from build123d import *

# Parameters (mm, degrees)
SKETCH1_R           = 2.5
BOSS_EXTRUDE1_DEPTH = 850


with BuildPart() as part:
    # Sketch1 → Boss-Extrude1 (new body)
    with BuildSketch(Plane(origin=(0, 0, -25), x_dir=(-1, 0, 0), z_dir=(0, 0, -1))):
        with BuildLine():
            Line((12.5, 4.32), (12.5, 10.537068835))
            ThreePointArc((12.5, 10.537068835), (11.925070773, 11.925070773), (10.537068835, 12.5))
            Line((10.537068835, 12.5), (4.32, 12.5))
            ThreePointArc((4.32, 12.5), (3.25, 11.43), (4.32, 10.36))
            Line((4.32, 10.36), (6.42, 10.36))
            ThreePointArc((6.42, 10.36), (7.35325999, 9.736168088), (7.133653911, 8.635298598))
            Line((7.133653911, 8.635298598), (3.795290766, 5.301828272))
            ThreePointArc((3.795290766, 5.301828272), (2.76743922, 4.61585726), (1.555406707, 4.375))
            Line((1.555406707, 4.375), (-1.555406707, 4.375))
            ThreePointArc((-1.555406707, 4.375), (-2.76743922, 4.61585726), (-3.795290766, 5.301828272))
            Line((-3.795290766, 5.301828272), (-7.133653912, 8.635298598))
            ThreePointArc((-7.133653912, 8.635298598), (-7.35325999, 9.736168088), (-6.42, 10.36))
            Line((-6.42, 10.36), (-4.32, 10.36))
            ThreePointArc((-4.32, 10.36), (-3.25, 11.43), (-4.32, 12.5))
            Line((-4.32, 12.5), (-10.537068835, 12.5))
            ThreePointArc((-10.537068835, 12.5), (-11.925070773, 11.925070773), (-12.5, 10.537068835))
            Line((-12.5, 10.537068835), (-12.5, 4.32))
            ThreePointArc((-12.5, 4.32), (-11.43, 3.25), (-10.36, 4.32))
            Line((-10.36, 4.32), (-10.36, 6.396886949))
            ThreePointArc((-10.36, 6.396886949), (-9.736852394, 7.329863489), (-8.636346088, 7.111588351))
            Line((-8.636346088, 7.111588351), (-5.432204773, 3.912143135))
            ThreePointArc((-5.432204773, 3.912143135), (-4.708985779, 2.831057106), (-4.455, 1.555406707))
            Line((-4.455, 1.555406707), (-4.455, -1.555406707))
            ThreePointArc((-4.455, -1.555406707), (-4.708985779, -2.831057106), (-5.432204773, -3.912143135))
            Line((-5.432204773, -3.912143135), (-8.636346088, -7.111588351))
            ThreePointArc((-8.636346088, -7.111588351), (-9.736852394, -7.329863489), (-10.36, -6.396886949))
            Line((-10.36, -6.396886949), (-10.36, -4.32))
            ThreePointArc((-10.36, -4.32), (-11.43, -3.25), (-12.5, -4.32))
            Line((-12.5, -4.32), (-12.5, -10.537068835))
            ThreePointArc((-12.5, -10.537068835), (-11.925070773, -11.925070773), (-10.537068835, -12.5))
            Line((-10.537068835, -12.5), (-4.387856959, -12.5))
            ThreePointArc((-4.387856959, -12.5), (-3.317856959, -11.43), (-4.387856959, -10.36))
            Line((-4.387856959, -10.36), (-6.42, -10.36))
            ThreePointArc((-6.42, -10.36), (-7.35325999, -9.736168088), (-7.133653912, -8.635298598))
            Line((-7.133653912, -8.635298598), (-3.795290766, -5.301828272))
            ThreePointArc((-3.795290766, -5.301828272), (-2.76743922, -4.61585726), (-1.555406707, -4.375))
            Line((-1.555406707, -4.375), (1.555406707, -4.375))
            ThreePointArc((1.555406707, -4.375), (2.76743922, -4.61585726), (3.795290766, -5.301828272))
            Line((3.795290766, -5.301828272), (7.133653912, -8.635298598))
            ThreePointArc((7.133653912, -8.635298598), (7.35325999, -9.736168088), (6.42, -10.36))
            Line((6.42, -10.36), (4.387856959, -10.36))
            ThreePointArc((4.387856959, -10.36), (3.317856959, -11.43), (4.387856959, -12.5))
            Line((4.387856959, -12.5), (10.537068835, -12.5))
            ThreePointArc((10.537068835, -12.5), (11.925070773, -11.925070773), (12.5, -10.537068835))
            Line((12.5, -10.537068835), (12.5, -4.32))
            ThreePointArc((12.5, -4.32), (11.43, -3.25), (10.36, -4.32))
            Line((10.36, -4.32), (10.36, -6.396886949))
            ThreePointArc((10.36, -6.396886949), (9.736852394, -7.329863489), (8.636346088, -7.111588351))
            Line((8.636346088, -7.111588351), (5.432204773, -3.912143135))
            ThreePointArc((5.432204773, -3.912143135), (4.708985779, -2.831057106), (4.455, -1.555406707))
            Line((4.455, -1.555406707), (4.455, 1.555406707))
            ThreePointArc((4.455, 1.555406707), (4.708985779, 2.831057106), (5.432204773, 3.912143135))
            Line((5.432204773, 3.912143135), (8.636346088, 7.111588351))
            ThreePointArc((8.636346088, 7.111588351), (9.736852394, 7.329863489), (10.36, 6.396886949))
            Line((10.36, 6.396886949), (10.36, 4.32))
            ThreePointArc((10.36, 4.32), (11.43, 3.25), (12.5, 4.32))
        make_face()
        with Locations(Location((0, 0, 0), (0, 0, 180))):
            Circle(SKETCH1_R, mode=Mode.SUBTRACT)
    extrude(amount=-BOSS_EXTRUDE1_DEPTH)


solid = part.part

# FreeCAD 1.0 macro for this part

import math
import FreeCAD as App
import Part
import Sketcher

V = App.Vector

doc = App.newDocument("Part")
body = doc.addObject("PartDesign::Body", "Body")

# Sketch on XY plane
sketch1 = doc.addObject("Sketcher::SketchObject", "Sketch")
body.addObject(sketch1)
sketch1.AttachmentSupport = (doc.XY_Plane, [""])
sketch1.MapMode = "FlatFace"
sketch1.AttachmentOffset = App.Placement(V(0, 0, -25), App.Rotation())
sketch1.addGeometry([
    Part.LineSegment(V(-12.5, 4.3, 0), V(-12.5, 10.5, 0)),  # 0
    Part.ArcOfCircle(Part.Circle(V(-10.5, 10.5, 0), V(0, 0, 1), 2), math.radians(90), math.radians(180)),  # 1
    Part.LineSegment(V(-10.5, 12.5, 0), V(-4.3, 12.5, 0)),  # 2
    Part.ArcOfCircle(Part.Circle(V(-4.3, 11.4, 0), V(0, 0, 1), 1.1), math.radians(-90), math.radians(90)),  # 3
    Part.LineSegment(V(-4.3, 10.4, 0), V(-6.4, 10.4, 0)),  # 4
    Part.ArcOfCircle(Part.Circle(V(-6.4, 9.4, 0), V(0, 0, 1), 1), math.radians(90), math.radians(225)),  # 5
    Part.LineSegment(V(-7.1, 8.6, 0), V(-3.8, 5.3, 0)),  # 6
    Part.ArcOfCircle(Part.Circle(V(-1.6, 7.5, 0), V(0, 0, 1), 3.2), math.radians(-135), math.radians(-90)),  # 7
    Part.LineSegment(V(-1.6, 4.4, 0), V(1.6, 4.4, 0)),  # 8
    Part.ArcOfCircle(Part.Circle(V(1.6, 7.5, 0), V(0, 0, 1), 3.2), math.radians(-90), math.radians(-45)),  # 9
    Part.LineSegment(V(3.8, 5.3, 0), V(7.1, 8.6, 0)),  # 10
    Part.ArcOfCircle(Part.Circle(V(6.4, 9.3, 0), V(0, 0, 1), 1), math.radians(-45), math.radians(90)),  # 11
    Part.LineSegment(V(6.4, 10.4, 0), V(4.3, 10.4, 0)),  # 12
    Part.ArcOfCircle(Part.Circle(V(4.3, 11.4, 0), V(0, 0, 1), 1.1), math.radians(90), math.radians(270)),  # 13
    Part.LineSegment(V(4.3, 12.5, 0), V(10.5, 12.5, 0)),  # 14
    Part.ArcOfCircle(Part.Circle(V(10.5, 10.5, 0), V(0, 0, 1), 2), math.radians(0), math.radians(90)),  # 15
    Part.LineSegment(V(12.5, 10.5, 0), V(12.5, 4.3, 0)),  # 16
    Part.ArcOfCircle(Part.Circle(V(11.4, 4.3, 0), V(0, 0, 1), 1.1), math.radians(180), math.radians(360)),  # 17
    Part.LineSegment(V(10.4, 4.3, 0), V(10.4, 6.4, 0)),  # 18
    Part.ArcOfCircle(Part.Circle(V(9.3, 6.4, 0), V(0, 0, 1), 1), math.radians(0), math.radians(135)),  # 19
    Part.LineSegment(V(8.6, 7.1, 0), V(5.4, 3.9, 0)),  # 20
    Part.ArcOfCircle(Part.Circle(V(7.8, 1.6, 0), V(0, 0, 1), 3.3), math.radians(135), math.radians(180)),  # 21
    Part.LineSegment(V(4.5, 1.6, 0), V(4.5, -1.6, 0)),  # 22
    Part.ArcOfCircle(Part.Circle(V(7.8, -1.6, 0), V(0, 0, 1), 3.3), math.radians(180), math.radians(225)),  # 23
    Part.LineSegment(V(5.4, -3.9, 0), V(8.6, -7.1, 0)),  # 24
    Part.ArcOfCircle(Part.Circle(V(9.3, -6.4, 0), V(0, 0, 1), 1), math.radians(-135), math.radians(0)),  # 25
    Part.LineSegment(V(10.4, -6.4, 0), V(10.4, -4.3, 0)),  # 26
    Part.ArcOfCircle(Part.Circle(V(11.4, -4.3, 0), V(0, 0, 1), 1.1), math.radians(0), math.radians(180)),  # 27
    Part.LineSegment(V(12.5, -4.3, 0), V(12.5, -10.5, 0)),  # 28
    Part.ArcOfCircle(Part.Circle(V(10.5, -10.5, 0), V(0, 0, 1), 2), math.radians(-90), math.radians(0)),  # 29
    Part.LineSegment(V(10.5, -12.5, 0), V(4.4, -12.5, 0)),  # 30
    Part.ArcOfCircle(Part.Circle(V(4.4, -11.4, 0), V(0, 0, 1), 1.1), math.radians(90), math.radians(270)),  # 31
    Part.LineSegment(V(4.4, -10.4, 0), V(6.4, -10.4, 0)),  # 32
    Part.ArcOfCircle(Part.Circle(V(6.4, -9.3, 0), V(0, 0, 1), 1), math.radians(-90), math.radians(45)),  # 33
    Part.LineSegment(V(7.1, -8.6, 0), V(3.8, -5.3, 0)),  # 34
    Part.ArcOfCircle(Part.Circle(V(1.6, -7.5, 0), V(0, 0, 1), 3.2), math.radians(45), math.radians(90)),  # 35
    Part.LineSegment(V(1.6, -4.4, 0), V(-1.6, -4.4, 0)),  # 36
    Part.ArcOfCircle(Part.Circle(V(-1.6, -7.5, 0), V(0, 0, 1), 3.2), math.radians(90), math.radians(135)),  # 37
    Part.LineSegment(V(-3.8, -5.3, 0), V(-7.1, -8.6, 0)),  # 38
    Part.ArcOfCircle(Part.Circle(V(-6.4, -9.3, 0), V(0, 0, 1), 1), math.radians(135), math.radians(270)),  # 39
    Part.LineSegment(V(-6.4, -10.4, 0), V(-4.4, -10.4, 0)),  # 40
    Part.ArcOfCircle(Part.Circle(V(-4.4, -11.4, 0), V(0, 0, 1), 1.1), math.radians(-90), math.radians(90)),  # 41
    Part.LineSegment(V(-4.4, -12.5, 0), V(-10.5, -12.5, 0)),  # 42
    Part.ArcOfCircle(Part.Circle(V(-10.5, -10.5, 0), V(0, 0, 1), 2), math.radians(180), math.radians(270)),  # 43
    Part.LineSegment(V(-12.5, -10.5, 0), V(-12.5, -4.3, 0)),  # 44
    Part.ArcOfCircle(Part.Circle(V(-11.4, -4.3, 0), V(0, 0, 1), 1.1), math.radians(0), math.radians(180)),  # 45
    Part.LineSegment(V(-10.4, -4.3, 0), V(-10.4, -6.4, 0)),  # 46
    Part.ArcOfCircle(Part.Circle(V(-9.3, -6.4, 0), V(0, 0, 1), 1), math.radians(-180), math.radians(-45)),  # 47
    Part.LineSegment(V(-8.6, -7.1, 0), V(-5.4, -3.9, 0)),  # 48
    Part.ArcOfCircle(Part.Circle(V(-7.8, -1.6, 0), V(0, 0, 1), 3.3), math.radians(-45), math.radians(0)),  # 49
    Part.LineSegment(V(-4.5, -1.6, 0), V(-4.5, 1.6, 0)),  # 50
    Part.ArcOfCircle(Part.Circle(V(-7.8, 1.6, 0), V(0, 0, 1), 3.3), math.radians(0), math.radians(45)),  # 51
    Part.LineSegment(V(-5.4, 3.9, 0), V(-8.6, 7.1, 0)),  # 52
    Part.ArcOfCircle(Part.Circle(V(-9.3, 6.4, 0), V(0, 0, 1), 1), math.radians(45), math.radians(180)),  # 53
    Part.LineSegment(V(-10.4, 6.4, 0), V(-10.4, 4.3, 0)),  # 54
    Part.ArcOfCircle(Part.Circle(V(-11.4, 4.3, 0), V(0, 0, 1), 1.1), math.radians(180), math.radians(360)),  # 55
    Part.Circle(V(0, 0, 0), V(0, 0, 1), 2.5),  # 56
], False)
sketch1.addConstraint([
    Sketcher.Constraint("Tangent", 0, 2, 1, 2),
    Sketcher.Constraint("Tangent", 1, 1, 2, 1),
    Sketcher.Constraint("Tangent", 2, 2, 3, 2),
    Sketcher.Constraint("Tangent", 3, 1, 4, 1),
    Sketcher.Constraint("Tangent", 4, 2, 5, 1),
    Sketcher.Constraint("Tangent", 5, 2, 6, 1),
    Sketcher.Constraint("Tangent", 6, 2, 7, 1),
    Sketcher.Constraint("Tangent", 7, 2, 8, 1),
    Sketcher.Constraint("Tangent", 8, 2, 9, 1),
    Sketcher.Constraint("Tangent", 9, 2, 10, 1),
    Sketcher.Constraint("Tangent", 10, 2, 11, 1),
    Sketcher.Constraint("Tangent", 11, 2, 12, 1),
    Sketcher.Constraint("Tangent", 12, 2, 13, 2),
    Sketcher.Constraint("Tangent", 13, 1, 14, 1),
    Sketcher.Constraint("Tangent", 14, 2, 15, 2),
    Sketcher.Constraint("Tangent", 15, 1, 16, 1),
    Sketcher.Constraint("Tangent", 16, 2, 17, 2),
    Sketcher.Constraint("Tangent", 17, 1, 18, 1),
    Sketcher.Constraint("Tangent", 18, 2, 19, 1),
    Sketcher.Constraint("Tangent", 19, 2, 20, 1),
    Sketcher.Constraint("Tangent", 20, 2, 21, 1),
    Sketcher.Constraint("Tangent", 21, 2, 22, 1),
    Sketcher.Constraint("Tangent", 22, 2, 23, 1),
    Sketcher.Constraint("Tangent", 23, 2, 24, 1),
    Sketcher.Constraint("Tangent", 24, 2, 25, 1),
    Sketcher.Constraint("Tangent", 25, 2, 26, 1),
    Sketcher.Constraint("Tangent", 26, 2, 27, 2),
    Sketcher.Constraint("Tangent", 27, 1, 28, 1),
    Sketcher.Constraint("Tangent", 28, 2, 29, 2),
    Sketcher.Constraint("Tangent", 29, 1, 30, 1),
    Sketcher.Constraint("Tangent", 30, 2, 31, 2),
    Sketcher.Constraint("Tangent", 31, 1, 32, 1),
    Sketcher.Constraint("Tangent", 32, 2, 33, 1),
    Sketcher.Constraint("Tangent", 33, 2, 34, 1),
    Sketcher.Constraint("Tangent", 34, 2, 35, 1),
    Sketcher.Constraint("Tangent", 35, 2, 36, 1),
    Sketcher.Constraint("Tangent", 36, 2, 37, 1),
    Sketcher.Constraint("Tangent", 37, 2, 38, 1),
    Sketcher.Constraint("Tangent", 38, 2, 39, 1),
    Sketcher.Constraint("Tangent", 39, 2, 40, 1),
    Sketcher.Constraint("Tangent", 40, 2, 41, 2),
    Sketcher.Constraint("Tangent", 41, 1, 42, 1),
    Sketcher.Constraint("Tangent", 42, 2, 43, 2),
    Sketcher.Constraint("Tangent", 43, 1, 44, 1),
    Sketcher.Constraint("Tangent", 44, 2, 45, 2),
    Sketcher.Constraint("Tangent", 45, 1, 46, 1),
    Sketcher.Constraint("Tangent", 46, 2, 47, 1),
    Sketcher.Constraint("Tangent", 47, 2, 48, 1),
    Sketcher.Constraint("Tangent", 48, 2, 49, 1),
    Sketcher.Constraint("Tangent", 49, 2, 50, 1),
    Sketcher.Constraint("Tangent", 50, 2, 51, 1),
    Sketcher.Constraint("Tangent", 51, 2, 52, 1),
    Sketcher.Constraint("Tangent", 52, 2, 53, 1),
    Sketcher.Constraint("Tangent", 53, 2, 54, 1),
    Sketcher.Constraint("Tangent", 54, 2, 55, 2),
    Sketcher.Constraint("Tangent", 55, 1, 0, 1),
    Sketcher.Constraint("Vertical", 0),
    Sketcher.Constraint("Horizontal", 2),
    Sketcher.Constraint("Horizontal", 4),
    Sketcher.Constraint("Horizontal", 8),
    Sketcher.Constraint("Horizontal", 12),
    Sketcher.Constraint("Horizontal", 14),
    Sketcher.Constraint("Vertical", 16),
    Sketcher.Constraint("Vertical", 18),
    Sketcher.Constraint("Vertical", 22),
    Sketcher.Constraint("Vertical", 26),
    Sketcher.Constraint("Vertical", 28),
    Sketcher.Constraint("Horizontal", 30),
    Sketcher.Constraint("Horizontal", 32),
    Sketcher.Constraint("Horizontal", 36),
    Sketcher.Constraint("Horizontal", 40),
    Sketcher.Constraint("Horizontal", 42),
    Sketcher.Constraint("Vertical", 44),
    Sketcher.Constraint("Vertical", 46),
    Sketcher.Constraint("Vertical", 50),
    Sketcher.Constraint("Vertical", 54),
    Sketcher.Constraint("Coincident", 56, 3, -1, 1),
    Sketcher.Constraint("Equal", 7, 9),
    Sketcher.Constraint("Equal", 5, 11),
    Sketcher.Constraint("Equal", 3, 13),
    Sketcher.Constraint("Equal", 1, 15),
    Sketcher.Constraint("Equal", 13, 17),
    Sketcher.Constraint("Equal", 11, 19),
    Sketcher.Constraint("Equal", 21, 23),
    Sketcher.Constraint("Equal", 19, 25),
    Sketcher.Constraint("Equal", 17, 27),
    Sketcher.Constraint("Equal", 15, 29),
    Sketcher.Constraint("Equal", 27, 31),
    Sketcher.Constraint("Equal", 25, 33),
    Sketcher.Constraint("Equal", 9, 35),
    Sketcher.Constraint("Equal", 35, 37),
    Sketcher.Constraint("Equal", 33, 39),
    Sketcher.Constraint("Equal", 31, 41),
    Sketcher.Constraint("Equal", 29, 43),
    Sketcher.Constraint("Equal", 41, 45),
    Sketcher.Constraint("Equal", 39, 47),
    Sketcher.Constraint("Equal", 23, 49),
    Sketcher.Constraint("Equal", 49, 51),
    Sketcher.Constraint("Equal", 47, 53),
    Sketcher.Constraint("Equal", 45, 55),
    Sketcher.Constraint("Symmetric", 1, 3, 29, 3, -1, 1),
    Sketcher.Constraint("Symmetric", 7, 3, 35, 3, -1, 1),
    Sketcher.Constraint("Symmetric", 11, 3, 39, 3, -1, 1),
    Sketcher.Constraint("Symmetric", 17, 3, 45, 3, -1, 1),
    Sketcher.Constraint("Symmetric", 21, 3, 49, 3, -1, 1),
    Sketcher.Constraint("Symmetric", 23, 2, 51, 2, -1, 1),
    Sketcher.Constraint("Symmetric", 5, 3, 11, 3, -2),
    Sketcher.Constraint("Symmetric", 27, 3, 45, 3, -2),
    Sketcher.Constraint("Symmetric", 34, 2, 37, 2, -2),
    Sketcher.Constraint("Symmetric", 24, 2, 47, 2, -2),
    Sketcher.Constraint("Parallel", 10, 20),
    Sketcher.Constraint("Parallel", 6, 24),
    Sketcher.Constraint("Parallel", 20, 38),
    Sketcher.Constraint("Horizontal", 17, 3, 55, 3),
    Sketcher.Constraint("Equal", 4, 12),
    Sketcher.Constraint("Equal", 32, 40),
    Sketcher.Constraint("Equal", 14, 0),
    Sketcher.Constraint("Equal", 36, 22),
    Sketcher.Constraint("Diameter", 56, 5.0),
    Sketcher.Constraint("Radius", 3, 1.07),
    Sketcher.Constraint("Radius", 5, 1.01),
    Sketcher.Constraint("Radius", 7, 3.17),
    Sketcher.Constraint("DistanceX", 4, 2, 4, 1, 2.1),
    Sketcher.Constraint("DistanceX", 0, 2, -1, 1, 12.5),
    Sketcher.Constraint("DistanceY", -1, 1, 1, 1, 12.5),
    Sketcher.Constraint("DistanceX", 3, 3, -1, 1, 4.32),
    Sketcher.Constraint("Radius", 1, 1.962931),
    Sketcher.Constraint("DistanceY", -1, 1, 7, 3, 7.545),
    Sketcher.Constraint("DistanceX", -1, 1, 21, 2, 4.455),
    Sketcher.Constraint("Radius", 21, 3.330487),
    Sketcher.Constraint("Distance", 6, 4.7177),
    Sketcher.Constraint("DistanceX", 30, 2, 30, 1, 6.149212),
])
pad1 = doc.addObject("PartDesign::Pad", "Pad")
body.addObject(pad1)
pad1.Profile = sketch1
pad1.Length = 850

doc.recompute()
